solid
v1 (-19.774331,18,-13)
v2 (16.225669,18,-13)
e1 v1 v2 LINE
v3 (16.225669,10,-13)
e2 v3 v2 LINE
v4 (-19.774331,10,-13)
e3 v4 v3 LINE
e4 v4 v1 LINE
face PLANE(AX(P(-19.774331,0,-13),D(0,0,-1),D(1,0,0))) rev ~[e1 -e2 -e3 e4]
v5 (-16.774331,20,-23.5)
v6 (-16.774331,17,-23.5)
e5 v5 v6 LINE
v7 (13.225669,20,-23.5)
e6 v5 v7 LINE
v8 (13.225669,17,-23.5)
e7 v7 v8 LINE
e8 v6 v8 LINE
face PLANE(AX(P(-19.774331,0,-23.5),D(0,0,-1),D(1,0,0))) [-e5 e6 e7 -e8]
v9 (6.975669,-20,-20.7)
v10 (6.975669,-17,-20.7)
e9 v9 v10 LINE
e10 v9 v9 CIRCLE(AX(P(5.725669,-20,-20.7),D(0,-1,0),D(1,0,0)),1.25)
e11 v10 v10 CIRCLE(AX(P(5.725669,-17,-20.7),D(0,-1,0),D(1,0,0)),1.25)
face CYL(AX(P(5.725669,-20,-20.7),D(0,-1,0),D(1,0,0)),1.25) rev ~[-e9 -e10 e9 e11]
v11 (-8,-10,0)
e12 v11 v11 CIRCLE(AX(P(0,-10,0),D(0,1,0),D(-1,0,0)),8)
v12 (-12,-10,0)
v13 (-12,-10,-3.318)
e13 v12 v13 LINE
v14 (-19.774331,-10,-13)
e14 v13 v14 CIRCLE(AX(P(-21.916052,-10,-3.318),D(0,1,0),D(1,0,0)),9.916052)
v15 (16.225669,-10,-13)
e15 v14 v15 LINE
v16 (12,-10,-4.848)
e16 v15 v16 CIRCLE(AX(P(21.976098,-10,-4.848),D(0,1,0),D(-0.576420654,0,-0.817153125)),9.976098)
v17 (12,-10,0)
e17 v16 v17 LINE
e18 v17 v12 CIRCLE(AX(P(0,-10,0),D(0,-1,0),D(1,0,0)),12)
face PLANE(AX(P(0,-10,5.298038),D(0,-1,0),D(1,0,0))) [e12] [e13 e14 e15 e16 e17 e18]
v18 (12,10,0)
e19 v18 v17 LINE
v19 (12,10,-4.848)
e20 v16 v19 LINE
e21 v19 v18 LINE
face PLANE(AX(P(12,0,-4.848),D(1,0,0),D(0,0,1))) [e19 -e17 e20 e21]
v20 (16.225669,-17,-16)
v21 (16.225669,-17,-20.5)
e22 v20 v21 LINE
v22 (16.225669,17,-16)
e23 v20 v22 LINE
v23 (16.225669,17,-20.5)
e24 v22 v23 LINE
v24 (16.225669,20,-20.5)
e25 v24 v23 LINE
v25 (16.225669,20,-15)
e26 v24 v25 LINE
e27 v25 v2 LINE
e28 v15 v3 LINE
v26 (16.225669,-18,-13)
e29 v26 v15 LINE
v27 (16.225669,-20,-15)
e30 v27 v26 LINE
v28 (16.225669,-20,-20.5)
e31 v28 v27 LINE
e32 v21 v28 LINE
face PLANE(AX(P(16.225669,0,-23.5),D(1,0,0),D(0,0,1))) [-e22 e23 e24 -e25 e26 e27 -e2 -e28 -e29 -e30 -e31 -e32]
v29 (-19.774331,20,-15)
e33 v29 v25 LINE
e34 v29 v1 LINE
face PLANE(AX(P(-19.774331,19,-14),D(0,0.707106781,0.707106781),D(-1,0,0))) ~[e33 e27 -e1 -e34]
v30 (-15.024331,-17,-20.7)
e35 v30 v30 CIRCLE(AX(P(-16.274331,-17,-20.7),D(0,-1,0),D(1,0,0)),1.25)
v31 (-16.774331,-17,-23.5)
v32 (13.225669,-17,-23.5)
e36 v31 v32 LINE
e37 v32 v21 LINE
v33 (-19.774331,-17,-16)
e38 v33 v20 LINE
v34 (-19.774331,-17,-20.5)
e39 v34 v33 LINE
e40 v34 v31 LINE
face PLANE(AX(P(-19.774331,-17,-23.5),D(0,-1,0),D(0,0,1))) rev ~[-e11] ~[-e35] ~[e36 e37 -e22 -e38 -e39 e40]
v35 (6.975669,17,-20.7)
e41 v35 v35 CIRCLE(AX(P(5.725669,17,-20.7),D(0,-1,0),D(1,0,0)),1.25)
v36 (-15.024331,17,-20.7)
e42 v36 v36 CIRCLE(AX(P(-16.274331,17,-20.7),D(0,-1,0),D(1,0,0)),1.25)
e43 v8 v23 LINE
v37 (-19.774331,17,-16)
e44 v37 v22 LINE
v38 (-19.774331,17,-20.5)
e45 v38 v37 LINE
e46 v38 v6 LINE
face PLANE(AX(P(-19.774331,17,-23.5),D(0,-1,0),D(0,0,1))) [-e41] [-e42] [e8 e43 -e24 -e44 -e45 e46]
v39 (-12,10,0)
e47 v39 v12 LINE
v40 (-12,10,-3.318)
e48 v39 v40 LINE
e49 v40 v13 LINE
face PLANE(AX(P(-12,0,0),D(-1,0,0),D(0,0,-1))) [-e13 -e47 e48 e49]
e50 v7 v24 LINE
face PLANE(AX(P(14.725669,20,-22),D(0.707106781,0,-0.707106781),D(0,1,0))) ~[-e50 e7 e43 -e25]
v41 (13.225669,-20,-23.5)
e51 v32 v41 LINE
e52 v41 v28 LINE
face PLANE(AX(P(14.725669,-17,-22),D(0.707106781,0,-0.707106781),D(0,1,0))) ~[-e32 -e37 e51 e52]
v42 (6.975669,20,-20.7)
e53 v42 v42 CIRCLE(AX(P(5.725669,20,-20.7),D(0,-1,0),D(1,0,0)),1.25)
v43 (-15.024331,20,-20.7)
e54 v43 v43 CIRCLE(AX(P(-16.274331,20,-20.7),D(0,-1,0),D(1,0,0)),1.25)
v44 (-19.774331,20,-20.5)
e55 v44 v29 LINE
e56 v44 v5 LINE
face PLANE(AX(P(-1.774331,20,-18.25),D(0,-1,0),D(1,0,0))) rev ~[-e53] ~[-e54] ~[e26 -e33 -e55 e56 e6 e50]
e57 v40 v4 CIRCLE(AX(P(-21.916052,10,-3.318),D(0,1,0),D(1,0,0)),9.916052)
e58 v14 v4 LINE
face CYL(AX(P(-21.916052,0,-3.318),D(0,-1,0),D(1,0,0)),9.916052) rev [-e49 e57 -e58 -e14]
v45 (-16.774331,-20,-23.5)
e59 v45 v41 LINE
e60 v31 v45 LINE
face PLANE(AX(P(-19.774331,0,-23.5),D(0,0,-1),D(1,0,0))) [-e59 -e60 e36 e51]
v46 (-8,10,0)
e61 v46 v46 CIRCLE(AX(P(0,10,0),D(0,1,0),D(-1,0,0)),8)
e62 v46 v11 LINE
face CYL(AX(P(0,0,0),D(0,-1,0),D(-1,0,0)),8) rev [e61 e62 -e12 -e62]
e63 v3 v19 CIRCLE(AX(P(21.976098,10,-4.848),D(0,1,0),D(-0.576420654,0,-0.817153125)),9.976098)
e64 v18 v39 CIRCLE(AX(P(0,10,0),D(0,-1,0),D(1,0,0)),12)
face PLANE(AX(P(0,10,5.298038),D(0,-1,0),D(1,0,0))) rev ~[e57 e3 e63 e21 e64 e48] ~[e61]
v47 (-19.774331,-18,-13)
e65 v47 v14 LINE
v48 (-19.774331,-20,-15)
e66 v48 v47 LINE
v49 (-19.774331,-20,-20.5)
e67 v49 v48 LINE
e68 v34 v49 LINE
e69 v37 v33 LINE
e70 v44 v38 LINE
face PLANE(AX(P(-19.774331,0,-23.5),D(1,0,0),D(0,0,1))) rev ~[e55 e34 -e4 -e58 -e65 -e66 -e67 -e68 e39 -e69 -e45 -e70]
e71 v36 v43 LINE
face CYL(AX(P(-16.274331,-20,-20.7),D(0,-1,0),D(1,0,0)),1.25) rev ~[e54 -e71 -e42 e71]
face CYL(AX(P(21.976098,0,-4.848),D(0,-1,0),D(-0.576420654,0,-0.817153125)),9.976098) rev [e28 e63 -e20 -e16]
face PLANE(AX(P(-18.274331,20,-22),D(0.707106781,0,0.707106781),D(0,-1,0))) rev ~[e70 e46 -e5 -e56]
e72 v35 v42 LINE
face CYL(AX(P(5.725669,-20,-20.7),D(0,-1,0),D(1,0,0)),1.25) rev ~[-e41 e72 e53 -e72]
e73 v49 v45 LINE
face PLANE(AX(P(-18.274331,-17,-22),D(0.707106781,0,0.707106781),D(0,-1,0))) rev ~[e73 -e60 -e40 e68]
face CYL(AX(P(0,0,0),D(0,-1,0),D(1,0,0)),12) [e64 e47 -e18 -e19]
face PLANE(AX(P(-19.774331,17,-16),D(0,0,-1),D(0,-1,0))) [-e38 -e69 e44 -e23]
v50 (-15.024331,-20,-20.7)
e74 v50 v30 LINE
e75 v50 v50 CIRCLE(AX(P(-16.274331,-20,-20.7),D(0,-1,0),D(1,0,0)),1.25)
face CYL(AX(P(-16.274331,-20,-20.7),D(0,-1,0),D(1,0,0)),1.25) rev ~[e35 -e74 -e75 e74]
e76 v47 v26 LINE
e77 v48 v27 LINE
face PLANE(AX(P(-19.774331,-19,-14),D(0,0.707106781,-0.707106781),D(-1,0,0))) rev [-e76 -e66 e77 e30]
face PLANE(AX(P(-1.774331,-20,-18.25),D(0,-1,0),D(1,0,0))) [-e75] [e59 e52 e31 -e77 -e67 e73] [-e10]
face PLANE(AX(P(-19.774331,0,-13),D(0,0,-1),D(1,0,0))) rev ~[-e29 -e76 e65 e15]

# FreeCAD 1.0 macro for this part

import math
import FreeCAD as App
import Part
import Sketcher

V = App.Vector


def edges_at(feature, points):
    """Names of the edges that pass closest to the given points."""
    edges = feature.Shape.Edges
    near = lambda p: min(range(len(edges)), key=lambda i: edges[i].distToShape(Part.Vertex(*p))[0])
    return sorted({f"Edge{near(p) + 1}" for p in points})


def add_polygon(sketch, points):
    """Adds a closed chain of lines whose ends are joined by coincident constraints."""
    first, n = sketch.GeometryCount, len(points)
    for a, b in zip(points, points[1:] + points[:1]):
        sketch.addGeometry(Part.LineSegment(App.Vector(*a, 0), App.Vector(*b, 0)), False)
    for i in range(n):
        sketch.addConstraint(Sketcher.Constraint("Coincident", first + i, 2, first + (i + 1) % n, 1))

doc = App.newDocument("Part")
body = doc.addObject("PartDesign::Body", "Body")

# Sketch on XZ plane
sketch1 = doc.addObject("Sketcher::SketchObject", "Sketch")
body.addObject(sketch1)
sketch1.AttachmentSupport = (doc.XZ_Plane, [""])
sketch1.MapMode = "FlatFace"
sketch1.addGeometry(Part.LineSegment(V(12, -4.8, 0), V(12, 0, 0)), False)
sketch1.addGeometry(Part.ArcOfCircle(Part.Circle(V(0, 0, 0), V(0, 0, 1), 12), math.radians(0), math.radians(180)), False)
sketch1.addGeometry(Part.LineSegment(V(-12, 0, 0), V(-12, -3.3, 0)), False)
sketch1.addGeometry(Part.ArcOfCircle(Part.Circle(V(-21.9, -3.3, 0), V(0, 0, 1), 9.9), math.radians(-78), math.radians(0)), False)
sketch1.addGeometry(Part.LineSegment(V(-19.8, -13, 0), V(16.2, -13, 0)), False)
sketch1.addGeometry(Part.ArcOfCircle(Part.Circle(V(22, -4.8, 0), V(0, 0, 1), 10), math.radians(180), math.radians(235)), False)
sketch1.addGeometry(Part.Circle(V(0, 0, 0), V(0, 0, 1), 8), False)
sketch1.addConstraint(Sketcher.Constraint("Tangent", 0, 2, 1, 1))
sketch1.addConstraint(Sketcher.Constraint("Tangent", 1, 2, 2, 1))
sketch1.addConstraint(Sketcher.Constraint("Tangent", 2, 2, 3, 2))
sketch1.addConstraint(Sketcher.Constraint("Coincident", 3, 1, 4, 1))
sketch1.addConstraint(Sketcher.Constraint("Coincident", 4, 2, 5, 2))
sketch1.addConstraint(Sketcher.Constraint("Tangent", 5, 1, 0, 1))
sketch1.addConstraint(Sketcher.Constraint("Vertical", 0))
sketch1.addConstraint(Sketcher.Constraint("Vertical", 2))
sketch1.addConstraint(Sketcher.Constraint("Horizontal", 4))
sketch1.addConstraint(Sketcher.Constraint("Coincident", 1, 3, -1, 1))
sketch1.addConstraint(Sketcher.Constraint("Coincident", 6, 3, -1, 1))
sketch1.addConstraint(Sketcher.Constraint("Diameter", 6, 16.0))
sketch1.addConstraint(Sketcher.Constraint("Radius", 1, 12.0))
sketch1.addConstraint(Sketcher.Constraint("DistanceX", 4, 1, 4, 2, 36.0))
sketch1.addConstraint(Sketcher.Constraint("DistanceY", 3, 1, -1, 1, 13.0))
sketch1.addConstraint(Sketcher.Constraint("Radius", 5, 9.976098))
sketch1.addConstraint(Sketcher.Constraint("DistanceY", 0, 1, 0, 2, 4.848))
sketch1.addConstraint(Sketcher.Constraint("DistanceY", 2, 2, 2, 1, 3.318))
pad1 = doc.addObject("PartDesign::Pad", "Pad")
body.addObject(pad1)
pad1.Profile = sketch1
pad1.Length = 20
pad1.Midplane = True

# Sketch on XZ plane
sketch2 = doc.addObject("Sketcher::SketchObject", "Sketch001")
body.addObject(sketch2)
sketch2.AttachmentSupport = (doc.XZ_Plane, [""])
sketch2.MapMode = "FlatFace"
add_polygon(sketch2, [(-20, -13), (-20, -24), (16, -24), (16, -13)])  # lines 0-3
sketch2.addConstraint(Sketcher.Constraint("Vertical", 0))
sketch2.addConstraint(Sketcher.Constraint("Horizontal", 1))
sketch2.addConstraint(Sketcher.Constraint("Vertical", 2))
sketch2.addConstraint(Sketcher.Constraint("Horizontal", 3))
sketch2.addConstraint(Sketcher.Constraint("DistanceX", 1, 1, 1, 2, 36.0))
sketch2.addConstraint(Sketcher.Constraint("DistanceY", 0, 2, 0, 1, 10.5))
sketch2.addConstraint(Sketcher.Constraint("DistanceY", 2, 2, -1, 1, 13.0))
sketch2.addConstraint(Sketcher.Constraint("DistanceX", 0, 2, -1, 1, 19.774331))
pad2 = doc.addObject("PartDesign::Pad", "Pad001")
body.addObject(pad2)
pad2.Profile = sketch2
pad2.Length = 40
pad2.Midplane = True

# Sketch on YZ plane
sketch3 = doc.addObject("Sketcher::SketchObject", "Sketch002")
body.addObject(sketch3)
sketch3.AttachmentSupport = (doc.YZ_Plane, [""])
sketch3.MapMode = "FlatFace"
sketch3.AttachmentOffset = App.Placement(V(0, 0, -19.774331), App.Rotation())
add_polygon(sketch3, [(17, -16), (17, -24), (-17, -24), (-17, -16)])  # lines 0-3
sketch3.addConstraint(Sketcher.Constraint("Vertical", 0))
sketch3.addConstraint(Sketcher.Constraint("Horizontal", 1))
sketch3.addConstraint(Sketcher.Constraint("Vertical", 2))
sketch3.addConstraint(Sketcher.Constraint("Horizontal", 3))
sketch3.addConstraint(Sketcher.Constraint("DistanceX", 1, 2, 1, 1, 34.0))
sketch3.addConstraint(Sketcher.Constraint("DistanceY", 0, 2, 0, 1, 7.5))
sketch3.addConstraint(Sketcher.Constraint("DistanceX", -1, 1, 0, 2, 17.0))
sketch3.addConstraint(Sketcher.Constraint("DistanceY", 2, 2, -1, 1, 16.0))
pocket1 = doc.addObject("PartDesign::Pocket", "Pocket")
body.addObject(pocket1)
pocket1.Profile = sketch3
pocket1.Type = "ThroughAll"
pocket1.Reversed = True

# Sketch on XZ plane
sketch4 = doc.addObject("Sketcher::SketchObject", "Sketch003")
body.addObject(sketch4)
sketch4.AttachmentSupport = (doc.XZ_Plane, [""])
sketch4.MapMode = "FlatFace"
sketch4.AttachmentOffset = App.Placement(V(0, 0, 20), App.Rotation())
sketch4.addGeometry(Part.Circle(V(-16.3, -20.7, 0), V(0, 0, 1), 1.2), False)
sketch4.addGeometry(Part.Circle(V(5.7, -20.7, 0), V(0, 0, 1), 1.2), False)
sketch4.addConstraint(Sketcher.Constraint("Equal", 0, 1))
sketch4.addConstraint(Sketcher.Constraint("Horizontal", 0, 3, 1, 3))
sketch4.addConstraint(Sketcher.Constraint("Diameter", 0, 2.5))
sketch4.addConstraint(Sketcher.Constraint("DistanceX", 0, 3, 1, 3, 22.0))
sketch4.addConstraint(Sketcher.Constraint("DistanceY", 0, 3, -1, 1, 20.7))
sketch4.addConstraint(Sketcher.Constraint("DistanceX", 0, 3, -1, 1, 16.274331))
pocket2 = doc.addObject("PartDesign::Pocket", "Pocket001")
body.addObject(pocket2)
pocket2.Profile = sketch4
pocket2.Length = 43.8
doc.recompute()

chamfer = doc.addObject("PartDesign::Chamfer", "Chamfer")
body.addObject(chamfer)
chamfer.Base = (pocket2, edges_at(pocket2, [
    (-19.774, -18.5, -23.5),
    (-19.774, 18.5, -23.5),
    (16.226, 18.5, -23.5),
    (16.226, -18.5, -23.5),
]))
chamfer.Size = 3
doc.recompute()

chamfer2 = doc.addObject("PartDesign::Chamfer", "Chamfer001")
body.addObject(chamfer2)
chamfer2.Base = (chamfer, edges_at(chamfer, [(-1.774, -20, -13), (-1.774, 20, -13)]))
chamfer2.Size = 2

doc.recompute()
